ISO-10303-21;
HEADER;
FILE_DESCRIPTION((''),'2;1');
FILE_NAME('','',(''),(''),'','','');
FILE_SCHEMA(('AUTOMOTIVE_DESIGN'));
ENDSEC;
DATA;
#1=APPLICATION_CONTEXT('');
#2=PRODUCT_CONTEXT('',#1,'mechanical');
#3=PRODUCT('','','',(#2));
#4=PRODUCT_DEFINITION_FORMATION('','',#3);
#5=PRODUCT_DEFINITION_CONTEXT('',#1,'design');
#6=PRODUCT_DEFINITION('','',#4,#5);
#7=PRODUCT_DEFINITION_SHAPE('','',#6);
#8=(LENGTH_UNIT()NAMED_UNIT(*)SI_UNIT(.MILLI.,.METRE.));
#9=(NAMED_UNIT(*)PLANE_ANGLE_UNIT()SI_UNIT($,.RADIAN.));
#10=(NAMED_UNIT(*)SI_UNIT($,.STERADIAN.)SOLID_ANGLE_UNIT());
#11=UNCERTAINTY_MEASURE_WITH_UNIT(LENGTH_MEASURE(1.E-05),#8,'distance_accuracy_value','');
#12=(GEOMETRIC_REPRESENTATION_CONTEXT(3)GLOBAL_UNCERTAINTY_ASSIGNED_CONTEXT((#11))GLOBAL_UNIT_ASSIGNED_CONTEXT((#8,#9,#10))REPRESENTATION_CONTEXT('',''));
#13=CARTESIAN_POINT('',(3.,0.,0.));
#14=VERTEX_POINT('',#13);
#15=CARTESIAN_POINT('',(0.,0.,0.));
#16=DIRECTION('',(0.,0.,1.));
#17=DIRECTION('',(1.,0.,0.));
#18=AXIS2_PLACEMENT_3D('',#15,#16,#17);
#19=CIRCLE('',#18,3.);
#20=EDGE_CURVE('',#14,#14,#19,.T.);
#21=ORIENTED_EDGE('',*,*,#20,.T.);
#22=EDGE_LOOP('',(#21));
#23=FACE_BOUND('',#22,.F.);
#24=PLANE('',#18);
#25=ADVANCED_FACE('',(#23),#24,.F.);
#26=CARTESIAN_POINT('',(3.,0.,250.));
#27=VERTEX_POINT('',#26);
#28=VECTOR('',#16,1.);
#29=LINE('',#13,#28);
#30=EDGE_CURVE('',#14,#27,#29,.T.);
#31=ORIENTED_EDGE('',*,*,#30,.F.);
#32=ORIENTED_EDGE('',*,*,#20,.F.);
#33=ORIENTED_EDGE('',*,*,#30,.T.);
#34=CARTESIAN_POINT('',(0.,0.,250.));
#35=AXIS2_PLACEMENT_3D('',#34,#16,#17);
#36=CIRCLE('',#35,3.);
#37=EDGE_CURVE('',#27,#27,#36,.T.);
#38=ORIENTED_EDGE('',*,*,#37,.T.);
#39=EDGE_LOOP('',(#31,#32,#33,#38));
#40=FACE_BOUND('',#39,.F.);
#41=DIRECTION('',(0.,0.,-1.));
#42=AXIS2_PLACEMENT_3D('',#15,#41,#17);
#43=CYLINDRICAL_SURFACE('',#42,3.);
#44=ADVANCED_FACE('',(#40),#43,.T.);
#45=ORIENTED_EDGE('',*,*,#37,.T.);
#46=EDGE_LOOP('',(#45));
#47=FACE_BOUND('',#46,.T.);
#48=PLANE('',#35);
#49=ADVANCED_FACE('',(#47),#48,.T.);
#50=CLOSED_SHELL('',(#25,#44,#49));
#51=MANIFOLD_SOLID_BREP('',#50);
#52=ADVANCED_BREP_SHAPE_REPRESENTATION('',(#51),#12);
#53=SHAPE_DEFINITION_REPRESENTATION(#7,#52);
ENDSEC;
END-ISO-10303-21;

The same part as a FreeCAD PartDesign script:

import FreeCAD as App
import Part
import Sketcher
Q = App.Units.Quantity

doc = App.newDocument("Part")
body = doc.addObject("PartDesign::Body", "Body")

# Sketch on XY plane
sketch1 = body.newObject("Sketcher::SketchObject", "Sketch")
sketch1.AttachmentSupport = (doc.getObject("XY_Plane"), [""])
sketch1.MapMode = "FlatFace"
sketch1.addGeometry(Part.Circle(App.Vector(0, 0, 0), App.Vector(0, 0, 1), 3), False)
sketch1.addConstraint(Sketcher.Constraint("Coincident", 0, 3, -1, 1))
sketch1.addConstraint(Sketcher.Constraint("Diameter", 0, Q("6 mm")))
pad1 = body.newObject("PartDesign::Pad", "Pad")
pad1.Profile = sketch1
pad1.Length = 250

doc.recompute()
